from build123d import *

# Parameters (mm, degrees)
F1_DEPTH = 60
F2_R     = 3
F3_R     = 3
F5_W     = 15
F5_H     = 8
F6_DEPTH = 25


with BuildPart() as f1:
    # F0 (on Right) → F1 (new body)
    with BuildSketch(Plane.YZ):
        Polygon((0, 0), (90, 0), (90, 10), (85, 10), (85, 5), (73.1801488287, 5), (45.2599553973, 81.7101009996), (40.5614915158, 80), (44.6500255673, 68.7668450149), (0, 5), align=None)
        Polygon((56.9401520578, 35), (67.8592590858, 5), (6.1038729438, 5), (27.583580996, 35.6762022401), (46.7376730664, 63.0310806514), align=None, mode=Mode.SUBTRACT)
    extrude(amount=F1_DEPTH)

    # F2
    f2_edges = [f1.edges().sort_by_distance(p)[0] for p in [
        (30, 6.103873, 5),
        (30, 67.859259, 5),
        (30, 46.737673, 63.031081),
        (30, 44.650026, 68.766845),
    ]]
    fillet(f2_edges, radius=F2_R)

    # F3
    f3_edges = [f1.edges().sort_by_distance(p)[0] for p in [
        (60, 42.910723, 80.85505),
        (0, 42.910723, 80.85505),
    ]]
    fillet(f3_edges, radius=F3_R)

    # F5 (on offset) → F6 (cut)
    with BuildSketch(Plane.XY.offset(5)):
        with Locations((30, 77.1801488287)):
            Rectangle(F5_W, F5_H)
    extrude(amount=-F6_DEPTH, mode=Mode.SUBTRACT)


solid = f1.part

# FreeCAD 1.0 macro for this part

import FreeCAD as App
import Part
import Sketcher

V = App.Vector
Q = App.Units.Quantity


def edges_at(feature, points):
    """Names of the edges that pass closest to the given points."""
    edges = feature.Shape.Edges
    near = lambda p: min(range(len(edges)), key=lambda i: edges[i].distToShape(Part.Vertex(*p))[0])
    return sorted({f"Edge{near(p) + 1}" for p in points})


def add_polygon(sketch, points):
    """Adds a closed chain of lines whose ends are joined by coincident constraints."""
    first, n = sketch.GeometryCount, len(points)
    for a, b in zip(points, points[1:] + points[:1]):
        sketch.addGeometry(Part.LineSegment(App.Vector(*a, 0), App.Vector(*b, 0)), False)
    for i in range(n):
        sketch.addConstraint(Sketcher.Constraint("Coincident", first + i, 2, first + (i + 1) % n, 1))

doc = App.newDocument("Part")
body = doc.addObject("PartDesign::Body", "Body")

# Sketch on YZ plane
sketch1 = body.newObject("Sketcher::SketchObject", "Sketch")
sketch1.AttachmentSupport = (doc.getObject("YZ_Plane"), [""])
sketch1.MapMode = "FlatFace"
add_polygon(sketch1, [(0, 0), (90, 0), (90, 10), (85, 10), (85, 5), (73, 5), (45, 82), (41, 80), (45, 69), (0, 5)])  # lines 0-9
add_polygon(sketch1, [(47, 63), (57, 35), (68, 5), (6, 5)])  # lines 10-13
sketch1.addConstraint(Sketcher.Constraint("Horizontal", 0))
sketch1.addConstraint(Sketcher.Constraint("Vertical", 1))
sketch1.addConstraint(Sketcher.Constraint("Horizontal", 2))
sketch1.addConstraint(Sketcher.Constraint("Vertical", 3))
sketch1.addConstraint(Sketcher.Constraint("Horizontal", 4))
sketch1.addConstraint(Sketcher.Constraint("Vertical", 9))
sketch1.addConstraint(Sketcher.Constraint("Horizontal", 12))
sketch1.addConstraint(Sketcher.Constraint("Coincident", 9, 2, -1, 1))
sketch1.addConstraint(Sketcher.Constraint("Perpendicular", 5, 6))
sketch1.addConstraint(Sketcher.Constraint("Perpendicular", 6, 7))
sketch1.addConstraint(Sketcher.Constraint("Parallel", 7, 10))
sketch1.addConstraint(Sketcher.Constraint("Parallel", 10, 11))
sketch1.addConstraint(Sketcher.Constraint("Parallel", 8, 13))
sketch1.addConstraint(Sketcher.Constraint("Horizontal", 4, 2, 8, 2))
sketch1.addConstraint(Sketcher.Constraint("Horizontal", 8, 2, 11, 2))
sketch1.addConstraint(Sketcher.Constraint("Equal", 2, 3))
sketch1.addConstraint(Sketcher.Constraint("Equal", 3, 9))
sketch1.addConstraint(Sketcher.Constraint("DistanceX", 0, 1, 0, 2, 90.0))
sketch1.addConstraint(Sketcher.Constraint("DistanceX", 2, 2, 2, 1, 5.0))
sketch1.addConstraint(Sketcher.Constraint("Angle", 5, Q("110 deg")))
sketch1.addConstraint(Sketcher.Constraint("Angle", 8, Q("-125 deg")))
sketch1.addConstraint(Sketcher.Constraint("Distance", 6, 5.000001))
sketch1.addConstraint(Sketcher.Constraint("DistanceY", -1, 1, 6, 2, 80.0))
sketch1.addConstraint(Sketcher.Constraint("DistanceY", -1, 1, 10, 2, 35.0))
sketch1.addConstraint(Sketcher.Constraint("DistanceX", 4, 2, 4, 1, 11.819851))
sketch1.addConstraint(Sketcher.Constraint("Distance", 13, 70.842869))
sketch1.addConstraint(Sketcher.Constraint("DistanceX", -1, 1, 11, 2, 67.859259))
pad1 = body.newObject("PartDesign::Pad", "Pad")
pad1.Profile = sketch1
pad1.Length = 60
doc.recompute()

fillet = body.newObject("PartDesign::Fillet", "Fillet")
fillet.Base = (pad1, edges_at(pad1, [
    (30, 6.104, 5),
    (30, 67.859, 5),
    (30, 46.738, 63.031),
    (30, 44.65, 68.767),
]))
fillet.Radius = 3
doc.recompute()

fillet2 = body.newObject("PartDesign::Fillet", "Fillet001")
fillet2.Base = (fillet, edges_at(fillet, [(60, 42.911, 80.855), (0, 42.911, 80.855)]))
fillet2.Radius = 3

# Sketch on XY plane
sketch2 = body.newObject("Sketcher::SketchObject", "Sketch001")
sketch2.AttachmentSupport = (doc.getObject("XY_Plane"), [""])
sketch2.MapMode = "FlatFace"
sketch2.AttachmentOffset = App.Placement(V(0, 0, 5), App.Rotation())
add_polygon(sketch2, [(22, 81), (22, 73), (38, 73), (38, 81)])  # lines 0-3
sketch2.addConstraint(Sketcher.Constraint("Vertical", 0))
sketch2.addConstraint(Sketcher.Constraint("Horizontal", 1))
sketch2.addConstraint(Sketcher.Constraint("Vertical", 2))
sketch2.addConstraint(Sketcher.Constraint("Horizontal", 3))
sketch2.addConstraint(Sketcher.Constraint("DistanceX", 1, 1, 1, 2, 15.0))
sketch2.addConstraint(Sketcher.Constraint("DistanceY", 0, 2, 0, 1, 8.0))
sketch2.addConstraint(Sketcher.Constraint("DistanceX", -1, 1, 0, 2, 22.5))
sketch2.addConstraint(Sketcher.Constraint("DistanceY", -1, 1, 0, 2, 73.180149))
pocket1 = body.newObject("PartDesign::Pocket", "Pocket")
pocket1.Profile = sketch2
pocket1.Length = 25

doc.recompute()
